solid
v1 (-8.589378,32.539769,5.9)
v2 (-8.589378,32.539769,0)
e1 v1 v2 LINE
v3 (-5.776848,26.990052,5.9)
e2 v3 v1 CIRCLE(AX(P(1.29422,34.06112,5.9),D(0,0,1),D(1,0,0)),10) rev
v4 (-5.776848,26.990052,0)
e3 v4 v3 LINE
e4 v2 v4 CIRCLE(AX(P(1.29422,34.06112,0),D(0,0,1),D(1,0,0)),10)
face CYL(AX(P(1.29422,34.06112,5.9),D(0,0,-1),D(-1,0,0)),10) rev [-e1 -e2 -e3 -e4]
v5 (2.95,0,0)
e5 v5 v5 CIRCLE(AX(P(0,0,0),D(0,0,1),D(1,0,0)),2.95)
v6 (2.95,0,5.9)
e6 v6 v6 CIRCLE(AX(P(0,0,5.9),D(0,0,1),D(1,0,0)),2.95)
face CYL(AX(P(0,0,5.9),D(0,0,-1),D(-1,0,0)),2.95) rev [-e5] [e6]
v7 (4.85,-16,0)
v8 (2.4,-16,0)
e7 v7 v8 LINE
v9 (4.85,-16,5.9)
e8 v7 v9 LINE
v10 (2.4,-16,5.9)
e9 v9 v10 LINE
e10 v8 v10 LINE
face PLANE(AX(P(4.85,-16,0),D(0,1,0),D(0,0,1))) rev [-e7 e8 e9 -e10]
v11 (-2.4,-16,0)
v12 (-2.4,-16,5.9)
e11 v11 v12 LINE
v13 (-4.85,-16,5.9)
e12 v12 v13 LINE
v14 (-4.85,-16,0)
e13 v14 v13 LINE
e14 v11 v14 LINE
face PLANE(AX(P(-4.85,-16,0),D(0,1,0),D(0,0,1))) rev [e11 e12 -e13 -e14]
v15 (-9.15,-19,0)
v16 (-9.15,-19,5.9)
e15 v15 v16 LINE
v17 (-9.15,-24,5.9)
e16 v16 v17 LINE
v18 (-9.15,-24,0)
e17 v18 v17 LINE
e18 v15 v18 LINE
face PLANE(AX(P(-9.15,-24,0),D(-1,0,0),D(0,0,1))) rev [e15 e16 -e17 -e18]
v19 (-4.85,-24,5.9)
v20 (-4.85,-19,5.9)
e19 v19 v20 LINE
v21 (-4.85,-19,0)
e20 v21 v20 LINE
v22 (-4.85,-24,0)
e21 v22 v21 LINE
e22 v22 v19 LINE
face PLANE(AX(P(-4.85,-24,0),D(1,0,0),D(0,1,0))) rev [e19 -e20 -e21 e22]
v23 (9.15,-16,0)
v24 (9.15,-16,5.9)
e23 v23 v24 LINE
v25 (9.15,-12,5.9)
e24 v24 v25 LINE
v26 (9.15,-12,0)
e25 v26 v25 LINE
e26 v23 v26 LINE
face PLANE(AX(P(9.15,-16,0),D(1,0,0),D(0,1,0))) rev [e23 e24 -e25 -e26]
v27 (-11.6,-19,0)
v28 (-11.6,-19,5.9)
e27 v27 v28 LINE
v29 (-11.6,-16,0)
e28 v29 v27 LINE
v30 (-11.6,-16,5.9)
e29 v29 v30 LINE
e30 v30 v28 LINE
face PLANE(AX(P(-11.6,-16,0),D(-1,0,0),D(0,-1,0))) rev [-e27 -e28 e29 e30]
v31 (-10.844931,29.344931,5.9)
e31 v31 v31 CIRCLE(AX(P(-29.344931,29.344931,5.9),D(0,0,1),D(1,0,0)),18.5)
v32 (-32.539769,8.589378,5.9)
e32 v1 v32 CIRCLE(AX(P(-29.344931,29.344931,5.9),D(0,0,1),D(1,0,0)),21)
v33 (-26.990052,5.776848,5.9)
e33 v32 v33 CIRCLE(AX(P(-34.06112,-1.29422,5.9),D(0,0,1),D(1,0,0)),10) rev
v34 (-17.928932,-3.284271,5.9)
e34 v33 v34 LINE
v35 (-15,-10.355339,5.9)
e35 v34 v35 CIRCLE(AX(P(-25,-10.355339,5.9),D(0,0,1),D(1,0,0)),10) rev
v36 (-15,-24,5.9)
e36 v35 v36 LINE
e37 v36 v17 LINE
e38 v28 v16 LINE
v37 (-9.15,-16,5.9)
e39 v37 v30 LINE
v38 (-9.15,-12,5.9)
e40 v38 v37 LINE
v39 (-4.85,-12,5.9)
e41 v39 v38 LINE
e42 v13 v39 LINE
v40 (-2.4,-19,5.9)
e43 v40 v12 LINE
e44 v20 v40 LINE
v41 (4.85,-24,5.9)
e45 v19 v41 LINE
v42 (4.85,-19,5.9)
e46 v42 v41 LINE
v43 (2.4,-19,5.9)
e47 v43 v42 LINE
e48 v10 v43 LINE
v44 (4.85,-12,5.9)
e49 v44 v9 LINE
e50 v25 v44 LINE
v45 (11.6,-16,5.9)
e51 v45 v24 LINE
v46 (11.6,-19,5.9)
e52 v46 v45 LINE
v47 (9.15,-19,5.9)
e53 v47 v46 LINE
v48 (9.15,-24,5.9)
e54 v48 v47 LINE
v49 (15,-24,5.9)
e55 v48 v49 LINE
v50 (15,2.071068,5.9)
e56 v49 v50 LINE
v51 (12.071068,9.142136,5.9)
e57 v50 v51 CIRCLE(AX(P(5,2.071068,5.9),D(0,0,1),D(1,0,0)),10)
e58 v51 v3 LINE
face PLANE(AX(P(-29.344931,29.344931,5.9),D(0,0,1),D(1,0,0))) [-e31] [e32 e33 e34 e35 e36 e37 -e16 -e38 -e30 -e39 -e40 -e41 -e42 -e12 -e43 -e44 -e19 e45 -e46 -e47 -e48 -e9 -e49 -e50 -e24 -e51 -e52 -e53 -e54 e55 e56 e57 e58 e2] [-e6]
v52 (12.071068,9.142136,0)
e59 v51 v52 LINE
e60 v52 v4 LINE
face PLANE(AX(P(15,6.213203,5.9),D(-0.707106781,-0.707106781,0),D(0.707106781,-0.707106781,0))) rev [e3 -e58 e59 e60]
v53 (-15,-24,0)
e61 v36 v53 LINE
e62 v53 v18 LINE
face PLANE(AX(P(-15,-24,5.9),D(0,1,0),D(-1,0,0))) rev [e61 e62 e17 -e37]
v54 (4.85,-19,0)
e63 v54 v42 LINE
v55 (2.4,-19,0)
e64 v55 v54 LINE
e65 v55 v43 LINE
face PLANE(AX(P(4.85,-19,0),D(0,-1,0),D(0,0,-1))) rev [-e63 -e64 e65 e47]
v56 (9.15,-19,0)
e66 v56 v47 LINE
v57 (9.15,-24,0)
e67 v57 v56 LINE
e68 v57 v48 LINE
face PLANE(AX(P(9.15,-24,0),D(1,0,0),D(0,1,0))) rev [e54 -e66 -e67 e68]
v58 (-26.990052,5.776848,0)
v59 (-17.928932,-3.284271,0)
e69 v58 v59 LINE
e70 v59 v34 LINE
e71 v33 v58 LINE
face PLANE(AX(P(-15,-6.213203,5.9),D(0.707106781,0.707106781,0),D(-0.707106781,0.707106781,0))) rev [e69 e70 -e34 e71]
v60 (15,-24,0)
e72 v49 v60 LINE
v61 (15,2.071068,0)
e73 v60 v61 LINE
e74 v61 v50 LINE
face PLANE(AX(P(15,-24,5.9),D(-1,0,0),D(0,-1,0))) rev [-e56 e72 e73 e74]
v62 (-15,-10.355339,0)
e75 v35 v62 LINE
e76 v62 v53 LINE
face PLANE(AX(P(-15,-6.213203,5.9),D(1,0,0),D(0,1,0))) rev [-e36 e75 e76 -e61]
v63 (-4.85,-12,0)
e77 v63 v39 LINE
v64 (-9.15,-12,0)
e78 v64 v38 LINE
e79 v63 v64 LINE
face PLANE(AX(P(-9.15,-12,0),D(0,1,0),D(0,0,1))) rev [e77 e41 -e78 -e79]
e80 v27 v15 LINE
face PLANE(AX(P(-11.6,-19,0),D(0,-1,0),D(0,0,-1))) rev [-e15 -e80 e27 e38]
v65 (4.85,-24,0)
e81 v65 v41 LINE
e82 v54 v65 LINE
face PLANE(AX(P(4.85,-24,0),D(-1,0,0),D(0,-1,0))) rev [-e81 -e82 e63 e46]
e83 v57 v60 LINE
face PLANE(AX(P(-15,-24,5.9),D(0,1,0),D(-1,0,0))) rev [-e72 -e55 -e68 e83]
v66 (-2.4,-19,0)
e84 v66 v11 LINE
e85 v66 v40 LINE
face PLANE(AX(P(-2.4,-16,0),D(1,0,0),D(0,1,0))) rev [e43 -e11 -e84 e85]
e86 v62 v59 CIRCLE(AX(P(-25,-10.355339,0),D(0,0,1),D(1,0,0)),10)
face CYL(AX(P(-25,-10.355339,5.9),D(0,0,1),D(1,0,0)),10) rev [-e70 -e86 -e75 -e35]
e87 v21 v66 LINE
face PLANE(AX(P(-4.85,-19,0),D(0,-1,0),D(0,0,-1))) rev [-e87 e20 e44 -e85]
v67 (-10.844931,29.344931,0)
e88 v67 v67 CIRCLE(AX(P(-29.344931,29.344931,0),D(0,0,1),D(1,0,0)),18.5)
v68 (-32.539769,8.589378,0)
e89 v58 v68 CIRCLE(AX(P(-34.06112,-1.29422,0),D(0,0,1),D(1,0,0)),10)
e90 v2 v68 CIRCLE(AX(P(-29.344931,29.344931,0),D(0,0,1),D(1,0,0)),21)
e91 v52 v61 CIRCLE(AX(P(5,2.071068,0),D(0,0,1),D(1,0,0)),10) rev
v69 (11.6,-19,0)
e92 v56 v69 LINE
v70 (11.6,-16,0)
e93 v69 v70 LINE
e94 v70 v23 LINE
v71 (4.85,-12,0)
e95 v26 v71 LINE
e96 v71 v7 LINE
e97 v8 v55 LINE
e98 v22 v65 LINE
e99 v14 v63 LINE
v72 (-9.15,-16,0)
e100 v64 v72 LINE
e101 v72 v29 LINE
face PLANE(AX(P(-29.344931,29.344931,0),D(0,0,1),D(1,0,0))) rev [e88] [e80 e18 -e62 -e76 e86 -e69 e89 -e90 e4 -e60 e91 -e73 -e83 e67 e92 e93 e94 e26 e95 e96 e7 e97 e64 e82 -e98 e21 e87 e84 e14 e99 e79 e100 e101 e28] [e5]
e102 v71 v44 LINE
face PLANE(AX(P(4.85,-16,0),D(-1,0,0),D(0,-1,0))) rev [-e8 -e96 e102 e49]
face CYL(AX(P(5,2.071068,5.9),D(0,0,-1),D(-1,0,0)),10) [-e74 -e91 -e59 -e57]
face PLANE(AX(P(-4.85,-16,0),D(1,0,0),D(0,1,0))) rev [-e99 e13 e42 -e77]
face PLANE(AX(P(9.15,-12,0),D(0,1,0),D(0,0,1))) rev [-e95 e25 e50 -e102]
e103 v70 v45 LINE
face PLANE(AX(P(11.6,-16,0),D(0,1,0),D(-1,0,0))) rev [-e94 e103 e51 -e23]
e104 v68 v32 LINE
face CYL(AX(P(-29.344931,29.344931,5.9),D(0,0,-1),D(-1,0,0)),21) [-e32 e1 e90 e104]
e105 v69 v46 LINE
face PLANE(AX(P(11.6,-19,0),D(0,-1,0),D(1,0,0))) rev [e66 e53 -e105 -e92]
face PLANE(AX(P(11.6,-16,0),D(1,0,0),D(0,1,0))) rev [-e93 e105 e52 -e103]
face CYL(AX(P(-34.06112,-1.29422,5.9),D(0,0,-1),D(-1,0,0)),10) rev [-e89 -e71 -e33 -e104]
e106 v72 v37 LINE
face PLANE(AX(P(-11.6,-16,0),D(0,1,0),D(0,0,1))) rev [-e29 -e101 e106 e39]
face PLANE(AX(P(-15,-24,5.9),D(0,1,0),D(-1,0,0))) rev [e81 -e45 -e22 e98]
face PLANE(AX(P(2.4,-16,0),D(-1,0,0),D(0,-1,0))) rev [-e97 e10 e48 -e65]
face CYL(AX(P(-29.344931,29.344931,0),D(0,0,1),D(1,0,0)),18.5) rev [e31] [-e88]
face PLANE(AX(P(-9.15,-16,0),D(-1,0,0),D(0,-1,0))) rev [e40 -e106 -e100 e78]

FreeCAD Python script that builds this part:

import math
import FreeCAD as App
import Part
import Sketcher
from FreeCAD import Vector
Q = App.Units.Quantity


def edges_at(feature, points):
    """Names of the edges that pass closest to the given points."""
    edges = feature.Shape.Edges
    near = lambda p: min(range(len(edges)), key=lambda i: edges[i].distToShape(Part.Vertex(*p))[0])
    return sorted({f"Edge{near(p) + 1}" for p in points})

doc = App.newDocument("Part")
params = doc.addObject("Spreadsheet::Sheet", "Params")
for row, (alias, value) in enumerate([
    ("sketch1_radius", "21 mm"),
    ("sketch1_diameter", "5.9 mm"),
    ("sketch1_width", "30 mm"),
    ("pad1_length", "5.9 mm"),
    ("sketch2_diameter", "37 mm"),
    ("sketch3_height", "5 mm"),
    ("sketch3_height2", "3 mm"),
    ("sketch3_height3", "4 mm"),
    ("sketch3_width", "4.3 mm"),
    ("sketch3_width2", "2.45 mm"),
    ("fillet_radius", "10 mm"),
], start=1):
    params.set(f"A{row}", alias)
    params.set(f"B{row}", "=" + value)
    params.setAlias(f"B{row}", alias)

body = doc.addObject("PartDesign::Body", "Body")

# Sketch on XY plane
sketch1 = body.newObject("Sketcher::SketchObject", "Sketch")
sketch1.AttachmentSupport = (doc.getObject("XY_Plane"), [""])
sketch1.MapMode = "FlatFace"
sketch1.addGeometry(Part.LineSegment(Vector(-15, -6.2, 0), Vector(-15, -24, 0)), False)
sketch1.addGeometry(Part.LineSegment(Vector(-15, -24, 0), Vector(15, -24, 0)), False)
sketch1.addGeometry(Part.LineSegment(Vector(15, -24, 0), Vector(15, 6.2, 0)), False)
sketch1.addGeometry(Part.LineSegment(Vector(15, 6.2, 0), Vector(-8.3, 29.6, 0)), False)
sketch1.addGeometry(Part.ArcOfCircle(Part.Circle(Vector(-29.3, 29.3, 0), Vector(0, 0, 1), 21), math.radians(1), math.radians(269)), False)
sketch1.addGeometry(Part.LineSegment(Vector(-29.6, 8.3, 0), Vector(-15, -6.2, 0)), False)
sketch1.addGeometry(Part.Circle(Vector(0, 0, 0), Vector(0, 0, 1), 3), False)
sketch1.addConstraint(Sketcher.Constraint("Coincident", 0, 2, 1, 1))
sketch1.addConstraint(Sketcher.Constraint("Coincident", 1, 2, 2, 1))
sketch1.addConstraint(Sketcher.Constraint("Coincident", 2, 2, 3, 1))
sketch1.addConstraint(Sketcher.Constraint("Coincident", 3, 2, 4, 1))
sketch1.addConstraint(Sketcher.Constraint("Coincident", 4, 2, 5, 1))
sketch1.addConstraint(Sketcher.Constraint("Coincident", 5, 2, 0, 1))
sketch1.addConstraint(Sketcher.Constraint("Vertical", 0))
sketch1.addConstraint(Sketcher.Constraint("Horizontal", 1))
sketch1.addConstraint(Sketcher.Constraint("Vertical", 2))
sketch1.addConstraint(Sketcher.Constraint("Coincident", 6, 3, -1, 1))
sketch1.addConstraint(Sketcher.Constraint("Symmetric", 2, 2, 5, 2, -1, 1))
sketch1.addConstraint(Sketcher.Constraint("Parallel", 3, 5))
sketch1.addConstraint(Sketcher.Constraint("Radius", 4, Q("21 mm")))
sketch1.addConstraint(Sketcher.Constraint("Diameter", 6, Q("5.9 mm")))
sketch1.addConstraint(Sketcher.Constraint("DistanceX", 1, 1, 1, 2, Q("30 mm")))
sketch1.addConstraint(Sketcher.Constraint("Angle", 3, Q("135 deg")))
sketch1.addConstraint(Sketcher.Constraint("DistanceY", 0, 2, -1, 1, Q("24 mm")))
sketch1.addConstraint(Sketcher.Constraint("Distance", 5, Q("20.589858 mm")))
sketch1.addConstraint(Sketcher.Constraint("DistanceY", 0, 2, 0, 1, Q("17.786797 mm")))
sketch1.addConstraint(Sketcher.Constraint("DistanceX", 4, 3, -1, 1, Q("29.344931 mm")))
sketch1.setExpression("Constraints[12]", "Params.sketch1_radius")
sketch1.setExpression("Constraints[13]", "Params.sketch1_diameter")
sketch1.setExpression("Constraints[14]", "Params.sketch1_width")
pad1 = body.newObject("PartDesign::Pad", "Pad")
pad1.Profile = sketch1
pad1.setExpression("Length", "Params.pad1_length")

# Sketch on XY plane
sketch2 = body.newObject("Sketcher::SketchObject", "Sketch001")
sketch2.AttachmentSupport = (doc.getObject("XY_Plane"), [""])
sketch2.MapMode = "FlatFace"
sketch2.AttachmentOffset = App.Placement(Vector(0, 0, 5.9), App.Rotation())
sketch2.addGeometry(Part.Circle(Vector(-29, 29, 0), Vector(0, 0, 1), 18), False)
sketch2.addConstraint(Sketcher.Constraint("Diameter", 0, Q("37 mm")))
sketch2.addConstraint(Sketcher.Constraint("DistanceX", 0, 3, -1, 1, Q("29.344931 mm")))
sketch2.addConstraint(Sketcher.Constraint("DistanceY", -1, 1, 0, 3, Q("29.344931 mm")))
sketch2.setExpression("Constraints[0]", "Params.sketch2_diameter")
pocket1 = body.newObject("PartDesign::Pocket", "Pocket")
pocket1.Profile = sketch2
pocket1.Type = "ThroughAll"

# Sketch on XY plane
sketch3 = body.newObject("Sketcher::SketchObject", "Sketch002")
sketch3.AttachmentSupport = (doc.getObject("XY_Plane"), [""])
sketch3.MapMode = "FlatFace"
sketch3.AttachmentOffset = App.Placement(Vector(0, 0, 5.9), App.Rotation())
sketch3.addGeometry(Part.LineSegment(Vector(-9.2, -24, 0), Vector(-4.8, -24, 0)), False)
sketch3.addGeometry(Part.LineSegment(Vector(-4.8, -24, 0), Vector(-4.8, -19, 0)), False)
sketch3.addGeometry(Part.LineSegment(Vector(-4.8, -19, 0), Vector(-2.4, -19, 0)), False)
sketch3.addGeometry(Part.LineSegment(Vector(-2.4, -19, 0), Vector(-2.4, -16, 0)), False)
sketch3.addGeometry(Part.LineSegment(Vector(-2.4, -16, 0), Vector(-4.8, -16, 0)), False)
sketch3.addGeometry(Part.LineSegment(Vector(-4.8, -16, 0), Vector(-4.8, -12, 0)), False)
sketch3.addGeometry(Part.LineSegment(Vector(-4.8, -12, 0), Vector(-9.2, -12, 0)), False)
sketch3.addGeometry(Part.LineSegment(Vector(-9.2, -12, 0), Vector(-9.2, -16, 0)), False)
sketch3.addGeometry(Part.LineSegment(Vector(-9.2, -16, 0), Vector(-11.6, -16, 0)), False)
sketch3.addGeometry(Part.LineSegment(Vector(-11.6, -16, 0), Vector(-11.6, -19, 0)), False)
sketch3.addGeometry(Part.LineSegment(Vector(-11.6, -19, 0), Vector(-9.2, -19, 0)), False)
sketch3.addGeometry(Part.LineSegment(Vector(-9.2, -19, 0), Vector(-9.2, -24, 0)), False)
sketch3.addGeometry(Part.LineSegment(Vector(4.8, -12, 0), Vector(4.8, -16, 0)), False)
sketch3.addGeometry(Part.LineSegment(Vector(4.8, -16, 0), Vector(2.4, -16, 0)), False)
sketch3.addGeometry(Part.LineSegment(Vector(2.4, -16, 0), Vector(2.4, -19, 0)), False)
sketch3.addGeometry(Part.LineSegment(Vector(2.4, -19, 0), Vector(4.8, -19, 0)), False)
sketch3.addGeometry(Part.LineSegment(Vector(4.8, -19, 0), Vector(4.8, -24, 0)), False)
sketch3.addGeometry(Part.LineSegment(Vector(4.8, -24, 0), Vector(9.2, -24, 0)), False)
sketch3.addGeometry(Part.LineSegment(Vector(9.2, -24, 0), Vector(9.2, -19, 0)), False)
sketch3.addGeometry(Part.LineSegment(Vector(9.2, -19, 0), Vector(11.6, -19, 0)), False)
sketch3.addGeometry(Part.LineSegment(Vector(11.6, -19, 0), Vector(11.6, -16, 0)), False)
sketch3.addGeometry(Part.LineSegment(Vector(11.6, -16, 0), Vector(9.2, -16, 0)), False)
sketch3.addGeometry(Part.LineSegment(Vector(9.2, -16, 0), Vector(9.2, -12, 0)), False)
sketch3.addGeometry(Part.LineSegment(Vector(9.2, -12, 0), Vector(4.8, -12, 0)), False)
sketch3.addConstraint(Sketcher.Constraint("Coincident", 0, 2, 1, 1))
sketch3.addConstraint(Sketcher.Constraint("Coincident", 1, 2, 2, 1))
sketch3.addConstraint(Sketcher.Constraint("Coincident", 2, 2, 3, 1))
sketch3.addConstraint(Sketcher.Constraint("Coincident", 3, 2, 4, 1))
sketch3.addConstraint(Sketcher.Constraint("Coincident", 4, 2, 5, 1))
sketch3.addConstraint(Sketcher.Constraint("Coincident", 5, 2, 6, 1))
sketch3.addConstraint(Sketcher.Constraint("Coincident", 6, 2, 7, 1))
sketch3.addConstraint(Sketcher.Constraint("Coincident", 7, 2, 8, 1))
sketch3.addConstraint(Sketcher.Constraint("Coincident", 8, 2, 9, 1))
sketch3.addConstraint(Sketcher.Constraint("Coincident", 9, 2, 10, 1))
sketch3.addConstraint(Sketcher.Constraint("Coincident", 10, 2, 11, 1))
sketch3.addConstraint(Sketcher.Constraint("Coincident", 11, 2, 0, 1))
sketch3.addConstraint(Sketcher.Constraint("Coincident", 12, 2, 13, 1))
sketch3.addConstraint(Sketcher.Constraint("Coincident", 13, 2, 14, 1))
sketch3.addConstraint(Sketcher.Constraint("Coincident", 14, 2, 15, 1))
sketch3.addConstraint(Sketcher.Constraint("Coincident", 15, 2, 16, 1))
sketch3.addConstraint(Sketcher.Constraint("Coincident", 16, 2, 17, 1))
sketch3.addConstraint(Sketcher.Constraint("Coincident", 17, 2, 18, 1))
sketch3.addConstraint(Sketcher.Constraint("Coincident", 18, 2, 19, 1))
sketch3.addConstraint(Sketcher.Constraint("Coincident", 19, 2, 20, 1))
sketch3.addConstraint(Sketcher.Constraint("Coincident", 20, 2, 21, 1))
sketch3.addConstraint(Sketcher.Constraint("Coincident", 21, 2, 22, 1))
sketch3.addConstraint(Sketcher.Constraint("Coincident", 22, 2, 23, 1))
sketch3.addConstraint(Sketcher.Constraint("Coincident", 23, 2, 12, 1))
sketch3.addConstraint(Sketcher.Constraint("Horizontal", 0))
sketch3.addConstraint(Sketcher.Constraint("Vertical", 1))
sketch3.addConstraint(Sketcher.Constraint("Horizontal", 2))
sketch3.addConstraint(Sketcher.Constraint("Vertical", 3))
sketch3.addConstraint(Sketcher.Constraint("Horizontal", 4))
sketch3.addConstraint(Sketcher.Constraint("Vertical", 5))
sketch3.addConstraint(Sketcher.Constraint("Horizontal", 6))
sketch3.addConstraint(Sketcher.Constraint("Vertical", 7))
sketch3.addConstraint(Sketcher.Constraint("Horizontal", 8))
sketch3.addConstraint(Sketcher.Constraint("Vertical", 9))
sketch3.addConstraint(Sketcher.Constraint("Horizontal", 10))
sketch3.addConstraint(Sketcher.Constraint("Vertical", 11))
sketch3.addConstraint(Sketcher.Constraint("Vertical", 12))
sketch3.addConstraint(Sketcher.Constraint("Horizontal", 13))
sketch3.addConstraint(Sketcher.Constraint("Vertical", 14))
sketch3.addConstraint(Sketcher.Constraint("Horizontal", 15))
sketch3.addConstraint(Sketcher.Constraint("Vertical", 16))
sketch3.addConstraint(Sketcher.Constraint("Horizontal", 17))
sketch3.addConstraint(Sketcher.Constraint("Vertical", 18))
sketch3.addConstraint(Sketcher.Constraint("Horizontal", 19))
sketch3.addConstraint(Sketcher.Constraint("Vertical", 20))
sketch3.addConstraint(Sketcher.Constraint("Horizontal", 21))
sketch3.addConstraint(Sketcher.Constraint("Vertical", 22))
sketch3.addConstraint(Sketcher.Constraint("Horizontal", 23))
sketch3.addConstraint(Sketcher.Constraint("Symmetric", 4, 2, 12, 2, -2))
sketch3.addConstraint(Sketcher.Constraint("Symmetric", 2, 2, 14, 2, -2))
sketch3.addConstraint(Sketcher.Constraint("Symmetric", 0, 2, 16, 2, -2))
sketch3.addConstraint(Sketcher.Constraint("Symmetric", 10, 2, 18, 2, -2))
sketch3.addConstraint(Sketcher.Constraint("Symmetric", 8, 2, 20, 2, -2))
sketch3.addConstraint(Sketcher.Constraint("Symmetric", 6, 2, 22, 2, -2))
sketch3.addConstraint(Sketcher.Constraint("Horizontal", 4, 2, 7, 2))
sketch3.addConstraint(Sketcher.Constraint("Horizontal", 2, 2, 9, 2))
sketch3.addConstraint(Sketcher.Constraint("Vertical", 1, 2, 4, 2))
sketch3.addConstraint(Sketcher.Constraint("Vertical", 7, 2, 10, 2))
sketch3.addConstraint(Sketcher.Constraint("Equal", 4, 8))
sketch3.addConstraint(Sketcher.Constraint("DistanceY", 1, 1, 1, 2, Q("5 mm")))
sketch3.addConstraint(Sketcher.Constraint("DistanceY", 3, 1, 3, 2, Q("3 mm")))
sketch3.addConstraint(Sketcher.Constraint("DistanceY", 5, 1, 5, 2, Q("4 mm")))
sketch3.addConstraint(Sketcher.Constraint("DistanceX", 0, 1, 0, 2, Q("4.3 mm")))
sketch3.addConstraint(Sketcher.Constraint("DistanceY", 0, 2, -1, 1, Q("24 mm")))
sketch3.addConstraint(Sketcher.Constraint("DistanceX", 2, 1, 2, 2, Q("2.45 mm")))
sketch3.addConstraint(Sketcher.Constraint("DistanceX", 2, 2, -1, 1, Q("2.4 mm")))
sketch3.setExpression("Constraints[59]", "Params.sketch3_height")
sketch3.setExpression("Constraints[60]", "Params.sketch3_height2")
sketch3.setExpression("Constraints[61]", "Params.sketch3_height3")
sketch3.setExpression("Constraints[62]", "Params.sketch3_width")
sketch3.setExpression("Constraints[64]", "Params.sketch3_width2")
pocket2 = body.newObject("PartDesign::Pocket", "Pocket001")
pocket2.Profile = sketch3
pocket2.Type = "ThroughAll"
doc.recompute()

fillet = body.newObject("PartDesign::Fillet", "Fillet")
fillet.Base = (pocket2, edges_at(pocket2, [
    (-8.346, 29.559, 2.95),
    (15, 6.213, 2.95),
    (-15, -6.213, 2.95),
    (-29.559, 8.346, 2.95),
]))
fillet.setExpression("Radius", "Params.fillet_radius")

doc.recompute()
